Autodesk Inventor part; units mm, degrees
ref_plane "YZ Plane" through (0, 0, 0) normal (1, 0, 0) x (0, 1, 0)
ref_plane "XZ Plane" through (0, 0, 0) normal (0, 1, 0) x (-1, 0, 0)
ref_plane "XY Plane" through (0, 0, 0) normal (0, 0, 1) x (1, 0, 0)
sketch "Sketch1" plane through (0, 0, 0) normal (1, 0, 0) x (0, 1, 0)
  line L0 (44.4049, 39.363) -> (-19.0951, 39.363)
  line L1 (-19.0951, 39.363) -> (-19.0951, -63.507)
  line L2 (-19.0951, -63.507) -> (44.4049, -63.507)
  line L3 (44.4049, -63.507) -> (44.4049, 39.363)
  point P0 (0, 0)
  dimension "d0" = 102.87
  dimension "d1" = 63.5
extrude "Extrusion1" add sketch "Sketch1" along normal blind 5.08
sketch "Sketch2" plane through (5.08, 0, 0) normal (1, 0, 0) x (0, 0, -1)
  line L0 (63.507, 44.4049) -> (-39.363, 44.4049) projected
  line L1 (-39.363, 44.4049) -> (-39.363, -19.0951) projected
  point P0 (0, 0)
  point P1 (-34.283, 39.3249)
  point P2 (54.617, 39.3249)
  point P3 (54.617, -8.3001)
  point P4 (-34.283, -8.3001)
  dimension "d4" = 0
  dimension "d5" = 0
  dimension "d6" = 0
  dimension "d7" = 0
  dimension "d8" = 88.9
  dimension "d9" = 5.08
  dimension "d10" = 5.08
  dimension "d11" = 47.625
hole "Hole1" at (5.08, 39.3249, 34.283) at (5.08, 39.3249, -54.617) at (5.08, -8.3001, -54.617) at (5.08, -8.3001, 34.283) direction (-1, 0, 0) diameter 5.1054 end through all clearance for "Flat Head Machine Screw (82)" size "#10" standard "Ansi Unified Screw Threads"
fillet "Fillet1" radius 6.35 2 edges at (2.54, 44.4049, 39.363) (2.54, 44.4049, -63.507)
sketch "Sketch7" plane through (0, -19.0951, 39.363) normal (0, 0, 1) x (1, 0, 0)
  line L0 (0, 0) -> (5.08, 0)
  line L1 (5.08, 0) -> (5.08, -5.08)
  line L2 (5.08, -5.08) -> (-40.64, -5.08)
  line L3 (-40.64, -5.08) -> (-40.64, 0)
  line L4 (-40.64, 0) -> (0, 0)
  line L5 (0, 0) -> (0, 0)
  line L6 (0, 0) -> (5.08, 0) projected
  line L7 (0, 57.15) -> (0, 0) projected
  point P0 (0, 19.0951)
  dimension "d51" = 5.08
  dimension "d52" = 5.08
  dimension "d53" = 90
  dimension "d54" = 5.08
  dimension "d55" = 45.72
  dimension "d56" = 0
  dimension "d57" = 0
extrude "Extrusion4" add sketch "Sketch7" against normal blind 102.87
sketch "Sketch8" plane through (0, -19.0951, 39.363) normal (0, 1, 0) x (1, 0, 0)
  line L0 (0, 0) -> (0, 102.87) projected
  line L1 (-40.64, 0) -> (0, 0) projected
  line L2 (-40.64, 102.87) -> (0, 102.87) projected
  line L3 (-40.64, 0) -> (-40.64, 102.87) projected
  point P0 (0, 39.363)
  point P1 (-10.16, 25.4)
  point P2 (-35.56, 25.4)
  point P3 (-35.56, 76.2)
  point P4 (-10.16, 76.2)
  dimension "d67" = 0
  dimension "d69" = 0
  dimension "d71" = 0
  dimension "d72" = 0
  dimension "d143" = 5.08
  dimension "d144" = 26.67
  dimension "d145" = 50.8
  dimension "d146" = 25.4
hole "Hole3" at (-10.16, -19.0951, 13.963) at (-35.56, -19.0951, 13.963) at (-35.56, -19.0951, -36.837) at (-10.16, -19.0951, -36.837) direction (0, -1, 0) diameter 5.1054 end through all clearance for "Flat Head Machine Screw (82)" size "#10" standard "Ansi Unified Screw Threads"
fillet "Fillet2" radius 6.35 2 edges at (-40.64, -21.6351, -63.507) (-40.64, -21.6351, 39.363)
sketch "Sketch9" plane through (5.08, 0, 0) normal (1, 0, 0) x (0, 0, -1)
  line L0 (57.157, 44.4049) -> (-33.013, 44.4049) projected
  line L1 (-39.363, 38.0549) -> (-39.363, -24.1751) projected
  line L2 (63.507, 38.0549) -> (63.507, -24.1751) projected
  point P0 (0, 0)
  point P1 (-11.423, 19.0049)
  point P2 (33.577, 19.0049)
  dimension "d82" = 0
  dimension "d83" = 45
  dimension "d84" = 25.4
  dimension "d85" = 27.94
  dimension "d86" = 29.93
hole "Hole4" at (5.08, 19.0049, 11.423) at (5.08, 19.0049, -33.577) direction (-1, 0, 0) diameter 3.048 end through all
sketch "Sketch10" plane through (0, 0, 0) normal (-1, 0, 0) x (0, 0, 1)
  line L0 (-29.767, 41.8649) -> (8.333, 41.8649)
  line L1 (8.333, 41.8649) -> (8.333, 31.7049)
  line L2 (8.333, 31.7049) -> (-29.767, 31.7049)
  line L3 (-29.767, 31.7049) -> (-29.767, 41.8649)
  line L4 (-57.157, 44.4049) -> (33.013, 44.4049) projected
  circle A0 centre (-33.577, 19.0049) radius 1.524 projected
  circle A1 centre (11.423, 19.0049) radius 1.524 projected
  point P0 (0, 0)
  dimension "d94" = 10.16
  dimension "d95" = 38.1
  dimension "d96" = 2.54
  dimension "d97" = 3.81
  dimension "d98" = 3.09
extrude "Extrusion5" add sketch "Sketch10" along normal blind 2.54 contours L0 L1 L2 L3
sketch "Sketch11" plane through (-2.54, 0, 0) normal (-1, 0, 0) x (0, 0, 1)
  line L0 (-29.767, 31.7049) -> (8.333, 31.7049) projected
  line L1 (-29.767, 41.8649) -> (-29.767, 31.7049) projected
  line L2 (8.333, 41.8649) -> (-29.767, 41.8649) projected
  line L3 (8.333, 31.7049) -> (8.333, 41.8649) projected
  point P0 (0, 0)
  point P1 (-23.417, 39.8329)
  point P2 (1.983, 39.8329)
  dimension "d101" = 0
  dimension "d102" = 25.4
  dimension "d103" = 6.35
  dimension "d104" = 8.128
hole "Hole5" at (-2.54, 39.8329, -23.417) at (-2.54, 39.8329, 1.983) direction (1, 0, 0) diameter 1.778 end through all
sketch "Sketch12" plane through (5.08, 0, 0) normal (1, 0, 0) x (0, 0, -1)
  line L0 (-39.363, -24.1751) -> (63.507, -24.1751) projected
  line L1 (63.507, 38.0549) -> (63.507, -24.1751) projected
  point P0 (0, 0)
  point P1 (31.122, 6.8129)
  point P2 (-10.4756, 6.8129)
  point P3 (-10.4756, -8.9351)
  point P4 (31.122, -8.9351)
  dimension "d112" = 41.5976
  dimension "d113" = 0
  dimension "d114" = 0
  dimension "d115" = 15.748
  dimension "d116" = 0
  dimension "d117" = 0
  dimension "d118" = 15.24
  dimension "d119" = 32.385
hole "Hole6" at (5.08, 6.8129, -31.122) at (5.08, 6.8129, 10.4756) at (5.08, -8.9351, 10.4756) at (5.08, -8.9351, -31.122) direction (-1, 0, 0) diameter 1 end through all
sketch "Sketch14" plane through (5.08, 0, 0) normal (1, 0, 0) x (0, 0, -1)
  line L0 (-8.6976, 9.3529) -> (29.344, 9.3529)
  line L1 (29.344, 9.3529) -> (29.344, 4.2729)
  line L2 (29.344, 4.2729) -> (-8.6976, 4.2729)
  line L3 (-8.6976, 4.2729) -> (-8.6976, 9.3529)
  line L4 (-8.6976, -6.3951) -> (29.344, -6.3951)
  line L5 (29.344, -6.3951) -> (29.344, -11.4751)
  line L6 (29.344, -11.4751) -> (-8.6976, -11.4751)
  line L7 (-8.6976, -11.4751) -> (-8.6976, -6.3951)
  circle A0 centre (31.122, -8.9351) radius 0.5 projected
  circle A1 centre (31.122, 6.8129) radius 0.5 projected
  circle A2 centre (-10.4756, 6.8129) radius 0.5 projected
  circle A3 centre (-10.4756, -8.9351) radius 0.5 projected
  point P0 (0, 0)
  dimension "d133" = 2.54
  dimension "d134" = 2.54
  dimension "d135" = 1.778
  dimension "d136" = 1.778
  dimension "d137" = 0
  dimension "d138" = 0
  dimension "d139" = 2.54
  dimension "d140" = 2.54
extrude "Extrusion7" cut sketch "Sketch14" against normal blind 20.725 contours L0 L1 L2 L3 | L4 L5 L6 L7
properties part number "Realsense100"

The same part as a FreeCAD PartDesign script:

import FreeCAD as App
import Part
import Sketcher
from FreeCAD import Vector
Q = App.Units.Quantity


def edges_at(feature, points):
    """Names of the edges that pass closest to the given points."""
    edges = feature.Shape.Edges
    near = lambda p: min(range(len(edges)), key=lambda i: edges[i].distToShape(Part.Vertex(*p))[0])
    return sorted({f"Edge{near(p) + 1}" for p in points})


def add_polygon(sketch, points):
    """Adds a closed chain of lines whose ends are joined by coincident constraints."""
    first, n = sketch.GeometryCount, len(points)
    for a, b in zip(points, points[1:] + points[:1]):
        sketch.addGeometry(Part.LineSegment(App.Vector(*a, 0), App.Vector(*b, 0)), False)
    for i in range(n):
        sketch.addConstraint(Sketcher.Constraint("Coincident", first + i, 2, first + (i + 1) % n, 1))

doc = App.newDocument("Part")
body = doc.addObject("PartDesign::Body", "Body")

# Sketch on YZ plane
sketch1 = body.newObject("Sketcher::SketchObject", "Sketch")
sketch1.AttachmentSupport = (doc.getObject("YZ_Plane"), [""])
sketch1.MapMode = "FlatFace"
add_polygon(sketch1, [(44, -64), (44, 39), (-19, 39), (-19, -64)])  # lines 0-3
sketch1.addConstraint(Sketcher.Constraint("Vertical", 0))
sketch1.addConstraint(Sketcher.Constraint("Horizontal", 1))
sketch1.addConstraint(Sketcher.Constraint("Vertical", 2))
sketch1.addConstraint(Sketcher.Constraint("Horizontal", 3))
sketch1.addConstraint(Sketcher.Constraint("DistanceX", 1, 2, 1, 1, Q("2.5 in")))
sketch1.addConstraint(Sketcher.Constraint("DistanceY", 0, 1, 0, 2, Q("4.05 in")))
sketch1.addConstraint(Sketcher.Constraint("DistanceX", -1, 1, 0, 2, Q("44.405 mm")))
sketch1.addConstraint(Sketcher.Constraint("DistanceY", -1, 1, 0, 2, Q("39.363 mm")))
pad1 = body.newObject("PartDesign::Pad", "Pad")
pad1.Profile = sketch1
pad1.Length = Q("0.2 in")

# Sketch on YZ plane
sketch2 = body.newObject("Sketcher::SketchObject", "Sketch001")
sketch2.AttachmentSupport = (doc.getObject("YZ_Plane"), [""])
sketch2.MapMode = "FlatFace"
sketch2.AttachmentOffset = App.Placement(Vector(0, 0, 0.2 * 25.4), App.Rotation())
sketch2.addGeometry(Part.Circle(Vector(39.3, 34.3, 0), Vector(0, 0, 1), 2.6), False)
sketch2.addGeometry(Part.Circle(Vector(39.3, -54.6, 0), Vector(0, 0, 1), 2.6), False)
sketch2.addGeometry(Part.Circle(Vector(-8.3, -54.6, 0), Vector(0, 0, 1), 2.6), False)
sketch2.addGeometry(Part.Circle(Vector(-8.3, 34.3, 0), Vector(0, 0, 1), 2.6), False)
sketch2.addConstraint(Sketcher.Constraint("Equal", 0, 1))
sketch2.addConstraint(Sketcher.Constraint("Equal", 1, 2))
sketch2.addConstraint(Sketcher.Constraint("Equal", 2, 3))
sketch2.addConstraint(Sketcher.Constraint("Horizontal", 1, 3, 2, 3))
sketch2.addConstraint(Sketcher.Constraint("Horizontal", 0, 3, 3, 3))
sketch2.addConstraint(Sketcher.Constraint("Vertical", 0, 3, 1, 3))
sketch2.addConstraint(Sketcher.Constraint("Vertical", 2, 3, 3, 3))
sketch2.addConstraint(Sketcher.Constraint("Diameter", 0, Q("0.201 in")))
sketch2.addConstraint(Sketcher.Constraint("DistanceY", 1, 3, 0, 3, Q("3.5 in")))
sketch2.addConstraint(Sketcher.Constraint("DistanceX", 2, 3, 1, 3, Q("1.875 in")))
sketch2.addConstraint(Sketcher.Constraint("DistanceX", -1, 1, 0, 3, Q("39.325 mm")))
sketch2.addConstraint(Sketcher.Constraint("DistanceY", -1, 1, 0, 3, Q("34.283 mm")))
doc.recompute()
hole = body.newObject("PartDesign::Hole", "Hole")
hole.Profile = sketch2
hole.ThreadType = "None"
hole.Diameter = Q("0.201 in")
hole.DepthType = "ThroughAll"
doc.recompute()

fillet = body.newObject("PartDesign::Fillet", "Fillet")
fillet.Base = (hole, edges_at(hole, [(2.54, 44.405, 39.363), (2.54, 44.405, -63.507)]))
fillet.Radius = Q("0.25 in")

# Sketch on XY plane
sketch3 = body.newObject("Sketcher::SketchObject", "Sketch002")
sketch3.AttachmentSupport = (doc.getObject("XY_Plane"), [""])
sketch3.MapMode = "FlatFace"
sketch3.AttachmentOffset = App.Placement(Vector(0, 0, 39.363), App.Rotation())
add_polygon(sketch3, [(5, -19), (-41, -19), (-41, -24), (5, -24)])  # lines 0-3
sketch3.addConstraint(Sketcher.Constraint("Horizontal", 0))
sketch3.addConstraint(Sketcher.Constraint("Vertical", 1))
sketch3.addConstraint(Sketcher.Constraint("Horizontal", 2))
sketch3.addConstraint(Sketcher.Constraint("Vertical", 3))
sketch3.addConstraint(Sketcher.Constraint("DistanceX", 0, 2, 0, 1, Q("1.8 in")))
sketch3.addConstraint(Sketcher.Constraint("DistanceY", 1, 2, 1, 1, Q("0.2 in")))
sketch3.addConstraint(Sketcher.Constraint("DistanceX", -1, 1, 2, 2, Q("0.2 in")))
sketch3.addConstraint(Sketcher.Constraint("DistanceY", 0, 2, -1, 1, Q("19.095 mm")))
pad2 = body.newObject("PartDesign::Pad", "Pad001")
pad2.Profile = sketch3
pad2.Length = Q("4.05 in")
pad2.Reversed = True

# Sketch on XZ plane
sketch4 = body.newObject("Sketcher::SketchObject", "Sketch003")
sketch4.AttachmentSupport = (doc.getObject("XZ_Plane"), [""])
sketch4.MapMode = "FlatFace"
sketch4.AttachmentOffset = App.Placement(Vector(0, 0, 19.0951), App.Rotation())
sketch4.addGeometry(Part.Circle(Vector(-10.2, 14, 0), Vector(0, 0, 1), 2.6), False)
sketch4.addGeometry(Part.Circle(Vector(-35.6, 14, 0), Vector(0, 0, 1), 2.6), False)
sketch4.addGeometry(Part.Circle(Vector(-35.6, -36.8, 0), Vector(0, 0, 1), 2.6), False)
sketch4.addGeometry(Part.Circle(Vector(-10.2, -36.8, 0), Vector(0, 0, 1), 2.6), False)
sketch4.addConstraint(Sketcher.Constraint("Equal", 0, 1))
sketch4.addConstraint(Sketcher.Constraint("Equal", 1, 2))
sketch4.addConstraint(Sketcher.Constraint("Equal", 2, 3))
sketch4.addConstraint(Sketcher.Constraint("Horizontal", 0, 3, 1, 3))
sketch4.addConstraint(Sketcher.Constraint("Horizontal", 2, 3, 3, 3))
sketch4.addConstraint(Sketcher.Constraint("Vertical", 1, 3, 2, 3))
sketch4.addConstraint(Sketcher.Constraint("Vertical", 0, 3, 3, 3))
sketch4.addConstraint(Sketcher.Constraint("Diameter", 0, Q("0.201 in")))
sketch4.addConstraint(Sketcher.Constraint("DistanceX", 1, 3, 0, 3, Q("1 in")))
sketch4.addConstraint(Sketcher.Constraint("DistanceY", 2, 3, 1, 3, Q("2 in")))
sketch4.addConstraint(Sketcher.Constraint("DistanceX", 0, 3, -1, 1, Q("0.4 in")))
sketch4.addConstraint(Sketcher.Constraint("DistanceY", -1, 1, 0, 3, Q("13.963 mm")))
doc.recompute()
hole2 = body.newObject("PartDesign::Hole", "Hole001")
hole2.Profile = sketch4
hole2.ThreadType = "None"
hole2.Diameter = Q("0.201 in")
hole2.DepthType = "ThroughAll"
hole2.Reversed = True
doc.recompute()

fillet2 = body.newObject("PartDesign::Fillet", "Fillet001")
fillet2.Base = (hole2, edges_at(hole2, [(-40.64, -21.635, -63.507), (-40.64, -21.635, 39.363)]))
fillet2.Radius = Q("0.25 in")

# Sketch on YZ plane
sketch5 = body.newObject("Sketcher::SketchObject", "Sketch004")
sketch5.AttachmentSupport = (doc.getObject("YZ_Plane"), [""])
sketch5.MapMode = "FlatFace"
sketch5.AttachmentOffset = App.Placement(Vector(0, 0, 0.2 * 25.4), App.Rotation())
sketch5.addGeometry(Part.Circle(Vector(19, 11.4, 0), Vector(0, 0, 1), 1.5), False)
sketch5.addGeometry(Part.Circle(Vector(19, -33.6, 0), Vector(0, 0, 1), 1.5), False)
sketch5.addConstraint(Sketcher.Constraint("Equal", 0, 1))
sketch5.addConstraint(Sketcher.Constraint("Vertical", 0, 3, 1, 3))
sketch5.addConstraint(Sketcher.Constraint("Diameter", 0, Q("0.12 in")))
sketch5.addConstraint(Sketcher.Constraint("DistanceX", -1, 1, 0, 3, Q("19.005 mm")))
sketch5.addConstraint(Sketcher.Constraint("DistanceY", -1, 1, 0, 3, Q("11.423 mm")))
sketch5.addConstraint(Sketcher.Constraint("DistanceY", 1, 3, -1, 1, Q("33.577 mm")))
doc.recompute()
hole3 = body.newObject("PartDesign::Hole", "Hole002")
hole3.Profile = sketch5
hole3.ThreadType = "None"
hole3.Diameter = Q("0.12 in")
hole3.DepthType = "ThroughAll"

# Sketch on YZ plane
sketch6 = body.newObject("Sketcher::SketchObject", "Sketch005")
sketch6.AttachmentSupport = (doc.getObject("YZ_Plane"), [""])
sketch6.MapMode = "FlatFace"
add_polygon(sketch6, [(42, 8), (42, -30), (32, -30), (32, 8)])  # lines 0-3
sketch6.addConstraint(Sketcher.Constraint("Vertical", 0))
sketch6.addConstraint(Sketcher.Constraint("Horizontal", 1))
sketch6.addConstraint(Sketcher.Constraint("Vertical", 2))
sketch6.addConstraint(Sketcher.Constraint("Horizontal", 3))
sketch6.addConstraint(Sketcher.Constraint("DistanceX", 1, 2, 1, 1, Q("0.4 in")))
sketch6.addConstraint(Sketcher.Constraint("DistanceY", 0, 2, 0, 1, Q("1.5 in")))
sketch6.addConstraint(Sketcher.Constraint("DistanceX", -1, 1, 0, 2, Q("41.865 mm")))
sketch6.addConstraint(Sketcher.Constraint("DistanceY", 0, 2, -1, 1, Q("29.767 mm")))
pad3 = body.newObject("PartDesign::Pad", "Pad002")
pad3.Profile = sketch6
pad3.Length = Q("0.1 in")
pad3.Reversed = True

# Sketch on YZ plane
sketch7 = body.newObject("Sketcher::SketchObject", "Sketch006")
sketch7.AttachmentSupport = (doc.getObject("YZ_Plane"), [""])
sketch7.MapMode = "FlatFace"
sketch7.AttachmentOffset = App.Placement(Vector(0, 0, -0.1 * 25.4), App.Rotation())
sketch7.addGeometry(Part.Circle(Vector(39.8, -23.4, 0), Vector(0, 0, 1), 0.9), False)
sketch7.addGeometry(Part.Circle(Vector(39.8, 2, 0), Vector(0, 0, 1), 0.9), False)
sketch7.addConstraint(Sketcher.Constraint("Equal", 0, 1))
sketch7.addConstraint(Sketcher.Constraint("Vertical", 0, 3, 1, 3))
sketch7.addConstraint(Sketcher.Constraint("Diameter", 0, Q("0.07 in")))
sketch7.addConstraint(Sketcher.Constraint("DistanceY", 0, 3, 1, 3, Q("1 in")))
sketch7.addConstraint(Sketcher.Constraint("DistanceX", -1, 1, 0, 3, Q("39.833 mm")))
sketch7.addConstraint(Sketcher.Constraint("DistanceY", 0, 3, -1, 1, Q("23.417 mm")))
doc.recompute()
hole4 = body.newObject("PartDesign::Hole", "Hole003")
hole4.Profile = sketch7
hole4.ThreadType = "None"
hole4.Diameter = Q("0.07 in")
hole4.DepthType = "ThroughAll"
hole4.Reversed = True

# Sketch on YZ plane
sketch8 = body.newObject("Sketcher::SketchObject", "Sketch007")
sketch8.AttachmentSupport = (doc.getObject("YZ_Plane"), [""])
sketch8.MapMode = "FlatFace"
sketch8.AttachmentOffset = App.Placement(Vector(0, 0, 0.2 * 25.4), App.Rotation())
sketch8.addGeometry(Part.Circle(Vector(6.8, -31.1, 0), Vector(0, 0, 1), 0.5), False)
sketch8.addGeometry(Part.Circle(Vector(6.8, 10.5, 0), Vector(0, 0, 1), 0.5), False)
sketch8.addGeometry(Part.Circle(Vector(-8.9, 10.5, 0), Vector(0, 0, 1), 0.5), False)
sketch8.addGeometry(Part.Circle(Vector(-8.9, -31.1, 0), Vector(0, 0, 1), 0.5), False)
sketch8.addConstraint(Sketcher.Constraint("Equal", 0, 1))
sketch8.addConstraint(Sketcher.Constraint("Equal", 1, 2))
sketch8.addConstraint(Sketcher.Constraint("Equal", 2, 3))
sketch8.addConstraint(Sketcher.Constraint("Horizontal", 1, 3, 2, 3))
sketch8.addConstraint(Sketcher.Constraint("Horizontal", 0, 3, 3, 3))
sketch8.addConstraint(Sketcher.Constraint("Vertical", 0, 3, 1, 3))
sketch8.addConstraint(Sketcher.Constraint("Vertical", 2, 3, 3, 3))
sketch8.addConstraint(Sketcher.Constraint("Diameter", 0, Q("1 mm")))
sketch8.addConstraint(Sketcher.Constraint("DistanceX", 2, 3, 1, 3, Q("0.62 in")))
sketch8.addConstraint(Sketcher.Constraint("DistanceY", 0, 3, 1, 3, Q("1.6377 in")))
sketch8.addConstraint(Sketcher.Constraint("DistanceX", -1, 1, 0, 3, Q("6.813 mm")))
sketch8.addConstraint(Sketcher.Constraint("DistanceY", 0, 3, -1, 1, Q("31.122 mm")))
doc.recompute()
hole5 = body.newObject("PartDesign::Hole", "Hole004")
hole5.Profile = sketch8
hole5.ThreadType = "None"
hole5.Diameter = 1
hole5.DepthType = "ThroughAll"

# Sketch on YZ plane
sketch9 = body.newObject("Sketcher::SketchObject", "Sketch008")
sketch9.AttachmentSupport = (doc.getObject("YZ_Plane"), [""])
sketch9.MapMode = "FlatFace"
sketch9.AttachmentOffset = App.Placement(Vector(0, 0, 0.2 * 25.4), App.Rotation())
add_polygon(sketch9, [(9, -29), (9, 9), (4, 9), (4, -29)])  # lines 0-3
add_polygon(sketch9, [(-6, -29), (-6, 9), (-11, 9), (-11, -29)])  # lines 4-7
sketch9.addConstraint(Sketcher.Constraint("Vertical", 0))
sketch9.addConstraint(Sketcher.Constraint("Horizontal", 1))
sketch9.addConstraint(Sketcher.Constraint("Vertical", 2))
sketch9.addConstraint(Sketcher.Constraint("Horizontal", 3))
sketch9.addConstraint(Sketcher.Constraint("Vertical", 4))
sketch9.addConstraint(Sketcher.Constraint("Horizontal", 5))
sketch9.addConstraint(Sketcher.Constraint("Vertical", 6))
sketch9.addConstraint(Sketcher.Constraint("Horizontal", 7))
sketch9.addConstraint(Sketcher.Constraint("Horizontal", 1, 2, 4, 2))
sketch9.addConstraint(Sketcher.Constraint("Horizontal", 3, 2, 6, 2))
sketch9.addConstraint(Sketcher.Constraint("Equal", 3, 5))
sketch9.addConstraint(Sketcher.Constraint("DistanceX", 1, 2, 1, 1, Q("0.2 in")))
sketch9.addConstraint(Sketcher.Constraint("DistanceX", 4, 2, 1, 2, Q("0.42 in")))
sketch9.addConstraint(Sketcher.Constraint("DistanceY", 0, 1, 0, 2, Q("1.4977 in")))
sketch9.addConstraint(Sketcher.Constraint("DistanceX", -1, 1, 0, 2, Q("9.353 mm")))
sketch9.addConstraint(Sketcher.Constraint("DistanceY", -1, 1, 0, 2, Q("8.6976 mm")))
pocket1 = body.newObject("PartDesign::Pocket", "Pocket")
pocket1.Profile = sketch9
pocket1.Length = 20.725

doc.recompute()
